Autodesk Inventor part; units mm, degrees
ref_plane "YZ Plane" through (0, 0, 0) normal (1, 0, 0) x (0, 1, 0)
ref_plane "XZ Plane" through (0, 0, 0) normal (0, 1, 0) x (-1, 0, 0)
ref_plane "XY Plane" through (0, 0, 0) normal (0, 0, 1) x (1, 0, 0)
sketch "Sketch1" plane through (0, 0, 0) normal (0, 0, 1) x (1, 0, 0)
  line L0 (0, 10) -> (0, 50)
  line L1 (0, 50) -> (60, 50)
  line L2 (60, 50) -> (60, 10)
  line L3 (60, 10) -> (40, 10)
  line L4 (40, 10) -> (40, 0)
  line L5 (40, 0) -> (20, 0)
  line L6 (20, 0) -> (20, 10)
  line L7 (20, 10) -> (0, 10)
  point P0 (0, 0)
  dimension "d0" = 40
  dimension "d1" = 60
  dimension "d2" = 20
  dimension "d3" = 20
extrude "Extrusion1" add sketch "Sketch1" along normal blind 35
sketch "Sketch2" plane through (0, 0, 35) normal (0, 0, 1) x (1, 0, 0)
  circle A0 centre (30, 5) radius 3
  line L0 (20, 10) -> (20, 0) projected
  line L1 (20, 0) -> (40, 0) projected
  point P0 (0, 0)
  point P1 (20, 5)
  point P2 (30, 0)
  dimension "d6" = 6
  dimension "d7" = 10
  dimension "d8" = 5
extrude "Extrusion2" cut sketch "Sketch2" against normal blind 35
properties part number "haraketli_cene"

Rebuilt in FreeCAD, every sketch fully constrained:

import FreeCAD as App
import Part
import Sketcher

doc = App.newDocument("Part")
params = doc.addObject("Spreadsheet::Sheet", "Params")
for row, (alias, value) in enumerate([
    ("sketch1_width", "20 mm"),
    ("sketch1_height", "40 mm"),
    ("sketch1_height2", "10 mm"),
    ("pad1_length", "35 mm"),
    ("sketch2_diameter", "6 mm"),
    ("pocket1_length", "35 mm"),
], start=1):
    params.set(f"A{row}", alias)
    params.set(f"B{row}", "=" + value)
    params.setAlias(f"B{row}", alias)

body = doc.addObject("PartDesign::Body", "Body")

# Sketch on XY plane
sketch1 = doc.addObject("Sketcher::SketchObject", "Sketch")
body.addObject(sketch1)
sketch1.AttachmentSupport = (doc.XY_Plane, [""])
sketch1.MapMode = "FlatFace"
sketch1.addGeometry(Part.LineSegment(App.Vector(0, 50, 0), App.Vector(0, 10, 0)), False)
sketch1.addGeometry(Part.LineSegment(App.Vector(0, 10, 0), App.Vector(20, 10, 0)), False)
sketch1.addGeometry(Part.LineSegment(App.Vector(20, 10, 0), App.Vector(20, 0, 0)), False)
sketch1.addGeometry(Part.LineSegment(App.Vector(20, 0, 0), App.Vector(40, 0, 0)), False)
sketch1.addGeometry(Part.LineSegment(App.Vector(40, 0, 0), App.Vector(40, 10, 0)), False)
sketch1.addGeometry(Part.LineSegment(App.Vector(40, 10, 0), App.Vector(60, 10, 0)), False)
sketch1.addGeometry(Part.LineSegment(App.Vector(60, 10, 0), App.Vector(60, 50, 0)), False)
sketch1.addGeometry(Part.LineSegment(App.Vector(60, 50, 0), App.Vector(0, 50, 0)), False)
sketch1.addConstraint(Sketcher.Constraint("Coincident", 0, 2, 1, 1))
sketch1.addConstraint(Sketcher.Constraint("Coincident", 1, 2, 2, 1))
sketch1.addConstraint(Sketcher.Constraint("Coincident", 2, 2, 3, 1))
sketch1.addConstraint(Sketcher.Constraint("Coincident", 3, 2, 4, 1))
sketch1.addConstraint(Sketcher.Constraint("Coincident", 4, 2, 5, 1))
sketch1.addConstraint(Sketcher.Constraint("Coincident", 5, 2, 6, 1))
sketch1.addConstraint(Sketcher.Constraint("Coincident", 6, 2, 7, 1))
sketch1.addConstraint(Sketcher.Constraint("Coincident", 7, 2, 0, 1))
sketch1.addConstraint(Sketcher.Constraint("Vertical", 0))
sketch1.addConstraint(Sketcher.Constraint("Horizontal", 1))
sketch1.addConstraint(Sketcher.Constraint("Vertical", 2))
sketch1.addConstraint(Sketcher.Constraint("Horizontal", 3))
sketch1.addConstraint(Sketcher.Constraint("Vertical", 4))
sketch1.addConstraint(Sketcher.Constraint("Horizontal", 5))
sketch1.addConstraint(Sketcher.Constraint("Vertical", 6))
sketch1.addConstraint(Sketcher.Constraint("Horizontal", 7))
sketch1.addConstraint(Sketcher.Constraint("PointOnObject", 0, 2, -2))
sketch1.addConstraint(Sketcher.Constraint("PointOnObject", 2, 2, -1))
sketch1.addConstraint(Sketcher.Constraint("Horizontal", 1, 2, 4, 2))
sketch1.addConstraint(Sketcher.Constraint("Equal", 1, 3))
sketch1.addConstraint(Sketcher.Constraint("Equal", 3, 5))
sketch1.addConstraint(Sketcher.Constraint("DistanceX", 1, 1, 1, 2, 20.0))
sketch1.addConstraint(Sketcher.Constraint("DistanceY", 0, 2, 0, 1, 40.0))
sketch1.addConstraint(Sketcher.Constraint("DistanceY", 2, 2, 2, 1, 10.0))
sketch1.setExpression("Constraints[21]", "Params.sketch1_width")
sketch1.setExpression("Constraints[22]", "Params.sketch1_height")
sketch1.setExpression("Constraints[23]", "Params.sketch1_height2")
pad1 = doc.addObject("PartDesign::Pad", "Pad")
body.addObject(pad1)
pad1.Profile = sketch1
pad1.setExpression("Length", "Params.pad1_length")

# Sketch on XY plane
sketch2 = doc.addObject("Sketcher::SketchObject", "Sketch001")
body.addObject(sketch2)
sketch2.AttachmentSupport = (doc.XY_Plane, [""])
sketch2.MapMode = "FlatFace"
sketch2.AttachmentOffset = App.Placement(App.Vector(0, 0, 35), App.Rotation())
sketch2.addGeometry(Part.Circle(App.Vector(30, 5, 0), App.Vector(0, 0, 1), 3), False)
sketch2.addConstraint(Sketcher.Constraint("Diameter", 0, 6.0))
sketch2.addConstraint(Sketcher.Constraint("DistanceY", -1, 1, 0, 3, 5.0))
sketch2.addConstraint(Sketcher.Constraint("DistanceX", -1, 1, 0, 3, 30.0))
sketch2.setExpression("Constraints[0]", "Params.sketch2_diameter")
pocket1 = doc.addObject("PartDesign::Pocket", "Pocket")
body.addObject(pocket1)
pocket1.Profile = sketch2
pocket1.setExpression("Length", "Params.pocket1_length")

doc.recompute()
